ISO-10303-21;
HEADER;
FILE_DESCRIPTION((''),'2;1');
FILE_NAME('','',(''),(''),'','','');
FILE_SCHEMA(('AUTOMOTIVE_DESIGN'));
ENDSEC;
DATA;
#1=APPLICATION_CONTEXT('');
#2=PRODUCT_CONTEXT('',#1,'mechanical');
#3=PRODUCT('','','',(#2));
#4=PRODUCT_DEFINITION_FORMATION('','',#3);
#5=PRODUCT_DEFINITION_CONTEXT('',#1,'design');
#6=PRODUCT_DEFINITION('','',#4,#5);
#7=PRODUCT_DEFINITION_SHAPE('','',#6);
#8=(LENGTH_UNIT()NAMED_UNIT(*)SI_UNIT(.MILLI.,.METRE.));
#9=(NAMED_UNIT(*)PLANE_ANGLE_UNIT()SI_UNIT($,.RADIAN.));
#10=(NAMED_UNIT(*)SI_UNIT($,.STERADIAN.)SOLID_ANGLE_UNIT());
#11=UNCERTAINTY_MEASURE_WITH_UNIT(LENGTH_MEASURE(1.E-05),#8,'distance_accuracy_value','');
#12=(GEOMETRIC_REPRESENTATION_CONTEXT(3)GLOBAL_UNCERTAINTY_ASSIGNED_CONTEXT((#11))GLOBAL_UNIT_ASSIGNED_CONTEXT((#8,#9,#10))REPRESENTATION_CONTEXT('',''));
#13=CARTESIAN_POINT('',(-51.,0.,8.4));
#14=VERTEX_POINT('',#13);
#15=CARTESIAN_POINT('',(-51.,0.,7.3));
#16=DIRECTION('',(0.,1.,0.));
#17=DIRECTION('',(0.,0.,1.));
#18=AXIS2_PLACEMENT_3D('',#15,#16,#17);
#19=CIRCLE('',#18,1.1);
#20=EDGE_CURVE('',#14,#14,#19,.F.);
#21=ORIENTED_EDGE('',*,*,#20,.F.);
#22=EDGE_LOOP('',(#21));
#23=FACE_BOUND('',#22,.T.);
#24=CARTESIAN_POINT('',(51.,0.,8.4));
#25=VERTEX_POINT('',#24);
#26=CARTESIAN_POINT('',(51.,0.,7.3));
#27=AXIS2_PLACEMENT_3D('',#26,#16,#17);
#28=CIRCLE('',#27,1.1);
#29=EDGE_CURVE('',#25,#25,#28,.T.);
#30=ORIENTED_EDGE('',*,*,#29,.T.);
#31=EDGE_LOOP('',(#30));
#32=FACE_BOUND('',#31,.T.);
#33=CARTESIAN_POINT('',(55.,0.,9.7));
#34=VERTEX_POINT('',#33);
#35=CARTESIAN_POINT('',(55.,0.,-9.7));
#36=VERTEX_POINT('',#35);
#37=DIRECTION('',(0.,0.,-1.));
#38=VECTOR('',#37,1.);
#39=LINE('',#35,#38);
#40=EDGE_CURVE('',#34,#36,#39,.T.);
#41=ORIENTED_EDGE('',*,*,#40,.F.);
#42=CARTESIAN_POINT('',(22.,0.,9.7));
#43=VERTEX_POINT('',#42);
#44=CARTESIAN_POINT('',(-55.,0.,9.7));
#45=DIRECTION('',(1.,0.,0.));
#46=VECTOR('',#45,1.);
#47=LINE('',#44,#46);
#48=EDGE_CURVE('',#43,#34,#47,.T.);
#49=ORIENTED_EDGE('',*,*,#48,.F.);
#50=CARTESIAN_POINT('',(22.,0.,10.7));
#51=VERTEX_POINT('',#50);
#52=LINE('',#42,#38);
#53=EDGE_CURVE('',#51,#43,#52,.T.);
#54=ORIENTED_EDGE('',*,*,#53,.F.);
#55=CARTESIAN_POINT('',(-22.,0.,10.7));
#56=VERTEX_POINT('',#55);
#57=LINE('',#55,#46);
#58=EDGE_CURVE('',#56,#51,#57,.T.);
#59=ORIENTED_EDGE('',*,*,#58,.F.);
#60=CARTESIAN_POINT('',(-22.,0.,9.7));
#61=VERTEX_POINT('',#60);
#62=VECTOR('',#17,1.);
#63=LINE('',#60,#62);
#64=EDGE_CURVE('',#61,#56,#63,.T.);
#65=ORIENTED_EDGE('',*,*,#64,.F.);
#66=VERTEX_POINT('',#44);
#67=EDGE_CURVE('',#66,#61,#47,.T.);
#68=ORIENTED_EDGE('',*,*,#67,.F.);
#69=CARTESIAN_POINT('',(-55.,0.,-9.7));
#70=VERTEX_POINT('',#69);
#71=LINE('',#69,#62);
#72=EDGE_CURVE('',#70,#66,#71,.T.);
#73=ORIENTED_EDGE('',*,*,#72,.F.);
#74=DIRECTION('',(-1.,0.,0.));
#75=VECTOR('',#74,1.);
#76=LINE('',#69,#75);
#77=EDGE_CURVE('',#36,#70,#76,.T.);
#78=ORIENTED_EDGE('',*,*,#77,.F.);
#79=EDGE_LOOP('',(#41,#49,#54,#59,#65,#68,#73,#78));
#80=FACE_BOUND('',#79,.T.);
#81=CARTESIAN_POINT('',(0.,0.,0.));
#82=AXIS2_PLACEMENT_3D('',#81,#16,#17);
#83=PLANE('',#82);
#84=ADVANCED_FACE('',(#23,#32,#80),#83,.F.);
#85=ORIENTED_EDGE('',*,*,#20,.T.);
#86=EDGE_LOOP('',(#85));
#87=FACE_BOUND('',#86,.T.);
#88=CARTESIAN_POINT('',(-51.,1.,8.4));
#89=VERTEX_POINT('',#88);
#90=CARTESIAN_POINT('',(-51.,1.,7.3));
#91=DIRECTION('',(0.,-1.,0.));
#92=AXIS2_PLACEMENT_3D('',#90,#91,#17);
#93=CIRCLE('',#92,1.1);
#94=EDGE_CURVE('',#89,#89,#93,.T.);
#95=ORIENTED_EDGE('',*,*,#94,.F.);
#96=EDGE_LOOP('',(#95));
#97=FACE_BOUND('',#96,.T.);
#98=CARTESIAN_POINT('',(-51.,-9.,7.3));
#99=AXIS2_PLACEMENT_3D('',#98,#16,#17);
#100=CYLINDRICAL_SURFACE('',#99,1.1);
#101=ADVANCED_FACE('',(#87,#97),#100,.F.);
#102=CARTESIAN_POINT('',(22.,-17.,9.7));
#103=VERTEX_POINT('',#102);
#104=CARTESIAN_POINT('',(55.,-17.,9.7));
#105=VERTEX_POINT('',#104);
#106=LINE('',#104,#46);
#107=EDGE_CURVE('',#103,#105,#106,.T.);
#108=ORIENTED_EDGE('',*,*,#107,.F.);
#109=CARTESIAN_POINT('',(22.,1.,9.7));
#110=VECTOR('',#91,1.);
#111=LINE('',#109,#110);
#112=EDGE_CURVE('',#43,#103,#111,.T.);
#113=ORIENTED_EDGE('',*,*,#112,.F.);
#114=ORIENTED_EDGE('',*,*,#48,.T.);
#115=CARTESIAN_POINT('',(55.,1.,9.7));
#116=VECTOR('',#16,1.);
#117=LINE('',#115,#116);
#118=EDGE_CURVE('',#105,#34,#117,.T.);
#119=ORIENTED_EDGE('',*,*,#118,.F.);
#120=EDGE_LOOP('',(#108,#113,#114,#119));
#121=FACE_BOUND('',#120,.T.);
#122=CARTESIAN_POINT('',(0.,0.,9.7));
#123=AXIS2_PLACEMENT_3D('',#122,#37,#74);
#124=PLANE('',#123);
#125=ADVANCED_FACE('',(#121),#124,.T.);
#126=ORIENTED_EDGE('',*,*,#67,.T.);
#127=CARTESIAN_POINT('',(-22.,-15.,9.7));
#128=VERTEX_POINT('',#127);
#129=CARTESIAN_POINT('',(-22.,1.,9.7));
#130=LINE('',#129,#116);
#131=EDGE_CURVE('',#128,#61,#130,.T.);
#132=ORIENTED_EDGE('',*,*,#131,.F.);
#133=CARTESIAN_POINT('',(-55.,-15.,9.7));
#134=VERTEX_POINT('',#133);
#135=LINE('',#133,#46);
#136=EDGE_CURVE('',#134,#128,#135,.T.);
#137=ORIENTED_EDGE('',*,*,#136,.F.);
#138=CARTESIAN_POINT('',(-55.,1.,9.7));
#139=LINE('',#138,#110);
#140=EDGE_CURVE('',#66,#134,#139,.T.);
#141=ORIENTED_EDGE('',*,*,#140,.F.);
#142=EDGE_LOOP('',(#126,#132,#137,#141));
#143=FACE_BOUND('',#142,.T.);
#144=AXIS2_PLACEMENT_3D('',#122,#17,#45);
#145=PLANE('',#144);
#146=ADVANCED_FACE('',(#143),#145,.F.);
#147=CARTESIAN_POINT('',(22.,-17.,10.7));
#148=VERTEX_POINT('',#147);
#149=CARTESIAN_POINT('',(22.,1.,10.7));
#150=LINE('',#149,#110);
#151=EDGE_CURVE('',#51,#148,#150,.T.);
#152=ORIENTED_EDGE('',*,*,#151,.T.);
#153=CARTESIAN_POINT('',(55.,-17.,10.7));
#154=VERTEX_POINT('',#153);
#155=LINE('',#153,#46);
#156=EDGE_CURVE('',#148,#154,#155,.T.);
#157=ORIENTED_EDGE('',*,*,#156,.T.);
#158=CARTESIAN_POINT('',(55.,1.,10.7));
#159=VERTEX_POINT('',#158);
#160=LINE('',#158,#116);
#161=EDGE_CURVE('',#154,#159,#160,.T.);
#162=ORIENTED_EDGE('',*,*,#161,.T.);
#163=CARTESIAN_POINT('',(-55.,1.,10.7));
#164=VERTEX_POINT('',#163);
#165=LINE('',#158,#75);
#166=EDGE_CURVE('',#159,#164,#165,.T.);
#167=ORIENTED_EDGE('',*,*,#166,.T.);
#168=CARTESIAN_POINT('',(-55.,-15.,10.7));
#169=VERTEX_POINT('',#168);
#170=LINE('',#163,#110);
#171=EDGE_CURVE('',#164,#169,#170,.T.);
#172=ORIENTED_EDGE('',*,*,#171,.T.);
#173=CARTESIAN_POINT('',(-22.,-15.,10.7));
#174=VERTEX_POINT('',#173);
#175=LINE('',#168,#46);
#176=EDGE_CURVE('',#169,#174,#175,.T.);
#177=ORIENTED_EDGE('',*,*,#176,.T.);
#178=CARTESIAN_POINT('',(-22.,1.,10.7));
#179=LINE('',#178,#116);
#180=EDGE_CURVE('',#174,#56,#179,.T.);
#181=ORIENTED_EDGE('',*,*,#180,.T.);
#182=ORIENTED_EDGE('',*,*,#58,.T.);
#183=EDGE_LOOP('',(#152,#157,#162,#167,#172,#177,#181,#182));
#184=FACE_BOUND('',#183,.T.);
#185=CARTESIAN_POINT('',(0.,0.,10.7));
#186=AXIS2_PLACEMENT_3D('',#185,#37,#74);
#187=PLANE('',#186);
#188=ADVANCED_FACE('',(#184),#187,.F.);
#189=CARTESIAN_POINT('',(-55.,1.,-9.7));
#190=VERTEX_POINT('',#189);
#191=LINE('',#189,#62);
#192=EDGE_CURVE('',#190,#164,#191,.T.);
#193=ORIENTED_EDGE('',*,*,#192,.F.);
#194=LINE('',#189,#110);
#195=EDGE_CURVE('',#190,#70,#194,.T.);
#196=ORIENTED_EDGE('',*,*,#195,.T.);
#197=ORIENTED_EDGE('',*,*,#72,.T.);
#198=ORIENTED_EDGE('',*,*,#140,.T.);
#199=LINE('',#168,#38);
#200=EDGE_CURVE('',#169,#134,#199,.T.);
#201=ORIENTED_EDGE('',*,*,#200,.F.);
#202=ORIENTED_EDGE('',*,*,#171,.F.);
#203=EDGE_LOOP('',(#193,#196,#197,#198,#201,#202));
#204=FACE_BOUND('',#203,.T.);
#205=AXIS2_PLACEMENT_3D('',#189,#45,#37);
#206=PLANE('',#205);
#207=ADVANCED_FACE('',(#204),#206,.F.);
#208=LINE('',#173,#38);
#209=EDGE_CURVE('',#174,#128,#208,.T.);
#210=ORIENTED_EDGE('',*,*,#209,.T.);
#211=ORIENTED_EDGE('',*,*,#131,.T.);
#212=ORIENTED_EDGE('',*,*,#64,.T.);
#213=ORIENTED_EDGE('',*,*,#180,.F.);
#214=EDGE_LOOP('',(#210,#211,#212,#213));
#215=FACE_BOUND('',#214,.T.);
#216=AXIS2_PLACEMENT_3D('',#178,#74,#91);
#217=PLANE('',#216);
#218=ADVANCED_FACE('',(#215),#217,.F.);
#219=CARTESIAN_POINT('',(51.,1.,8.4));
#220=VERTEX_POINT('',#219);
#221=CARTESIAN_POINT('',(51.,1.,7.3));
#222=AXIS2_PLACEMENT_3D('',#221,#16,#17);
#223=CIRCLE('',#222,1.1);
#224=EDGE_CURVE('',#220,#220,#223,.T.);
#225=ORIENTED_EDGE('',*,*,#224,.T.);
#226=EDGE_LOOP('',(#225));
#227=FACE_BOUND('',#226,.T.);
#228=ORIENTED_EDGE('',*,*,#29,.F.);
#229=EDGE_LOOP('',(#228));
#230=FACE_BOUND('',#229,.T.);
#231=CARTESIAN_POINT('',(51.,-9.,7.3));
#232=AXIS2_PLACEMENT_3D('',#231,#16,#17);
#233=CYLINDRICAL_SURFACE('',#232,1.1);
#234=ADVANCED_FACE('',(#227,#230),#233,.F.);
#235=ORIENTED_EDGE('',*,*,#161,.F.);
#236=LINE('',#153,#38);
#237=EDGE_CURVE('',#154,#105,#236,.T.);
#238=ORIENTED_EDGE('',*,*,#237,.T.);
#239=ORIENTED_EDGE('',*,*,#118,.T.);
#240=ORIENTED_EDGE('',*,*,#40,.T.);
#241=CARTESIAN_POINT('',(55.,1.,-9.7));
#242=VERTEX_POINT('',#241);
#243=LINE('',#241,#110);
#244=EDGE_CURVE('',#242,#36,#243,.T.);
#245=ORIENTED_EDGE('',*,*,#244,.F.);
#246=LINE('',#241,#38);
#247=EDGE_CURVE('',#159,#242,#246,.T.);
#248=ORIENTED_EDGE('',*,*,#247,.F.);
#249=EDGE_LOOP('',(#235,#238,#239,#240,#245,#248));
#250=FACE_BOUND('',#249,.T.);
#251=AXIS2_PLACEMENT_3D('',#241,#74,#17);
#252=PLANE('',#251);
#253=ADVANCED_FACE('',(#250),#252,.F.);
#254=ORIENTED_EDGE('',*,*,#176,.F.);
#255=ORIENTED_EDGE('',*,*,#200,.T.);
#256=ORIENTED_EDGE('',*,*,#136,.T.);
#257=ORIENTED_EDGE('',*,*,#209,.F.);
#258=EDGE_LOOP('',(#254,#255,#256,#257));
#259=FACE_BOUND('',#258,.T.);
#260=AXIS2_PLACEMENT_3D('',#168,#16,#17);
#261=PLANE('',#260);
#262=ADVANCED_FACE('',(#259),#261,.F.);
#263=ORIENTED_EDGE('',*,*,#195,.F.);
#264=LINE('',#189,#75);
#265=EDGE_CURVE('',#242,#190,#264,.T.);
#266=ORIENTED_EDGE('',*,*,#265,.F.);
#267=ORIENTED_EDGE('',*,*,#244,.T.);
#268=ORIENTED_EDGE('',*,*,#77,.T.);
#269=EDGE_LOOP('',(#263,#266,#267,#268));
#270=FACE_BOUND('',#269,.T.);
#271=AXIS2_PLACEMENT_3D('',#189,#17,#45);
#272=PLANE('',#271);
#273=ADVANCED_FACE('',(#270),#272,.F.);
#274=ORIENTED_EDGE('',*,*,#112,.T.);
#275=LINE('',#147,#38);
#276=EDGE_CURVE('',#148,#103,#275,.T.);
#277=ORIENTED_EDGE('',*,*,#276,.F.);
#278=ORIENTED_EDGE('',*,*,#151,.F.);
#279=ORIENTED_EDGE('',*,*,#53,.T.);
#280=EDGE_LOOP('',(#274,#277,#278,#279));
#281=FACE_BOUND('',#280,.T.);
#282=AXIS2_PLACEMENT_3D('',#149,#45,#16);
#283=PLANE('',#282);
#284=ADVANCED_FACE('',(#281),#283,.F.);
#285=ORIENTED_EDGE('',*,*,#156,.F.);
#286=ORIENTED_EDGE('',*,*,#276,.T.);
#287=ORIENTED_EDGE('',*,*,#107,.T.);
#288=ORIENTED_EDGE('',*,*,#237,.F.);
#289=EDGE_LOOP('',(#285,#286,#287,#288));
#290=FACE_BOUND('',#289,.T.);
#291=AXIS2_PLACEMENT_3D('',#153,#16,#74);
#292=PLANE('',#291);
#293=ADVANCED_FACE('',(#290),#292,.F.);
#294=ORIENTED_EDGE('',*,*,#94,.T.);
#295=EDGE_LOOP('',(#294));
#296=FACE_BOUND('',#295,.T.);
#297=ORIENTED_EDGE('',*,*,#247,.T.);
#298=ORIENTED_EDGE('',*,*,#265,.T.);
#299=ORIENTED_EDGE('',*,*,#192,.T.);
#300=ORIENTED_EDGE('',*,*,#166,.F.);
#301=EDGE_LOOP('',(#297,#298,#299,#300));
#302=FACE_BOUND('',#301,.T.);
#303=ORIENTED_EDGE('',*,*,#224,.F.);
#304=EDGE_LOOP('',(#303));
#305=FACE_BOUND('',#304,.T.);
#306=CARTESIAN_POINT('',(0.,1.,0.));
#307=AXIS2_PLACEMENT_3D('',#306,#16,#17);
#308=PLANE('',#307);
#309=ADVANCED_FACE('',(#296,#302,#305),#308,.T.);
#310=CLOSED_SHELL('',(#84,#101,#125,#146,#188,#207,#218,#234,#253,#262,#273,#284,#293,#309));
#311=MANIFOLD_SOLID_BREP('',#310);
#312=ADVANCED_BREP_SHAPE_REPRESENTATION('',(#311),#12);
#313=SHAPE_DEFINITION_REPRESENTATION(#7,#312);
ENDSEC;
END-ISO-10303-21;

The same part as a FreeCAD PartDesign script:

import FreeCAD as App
import Part
import Sketcher

doc = App.newDocument("Part")
body = doc.addObject("PartDesign::Body", "Body")

sketch1 = body.newObject("Sketcher::SketchObject", "Sketch")
sketch1.AttachmentSupport = (doc.getObject("XZ_Plane"), [""])
sketch1.MapMode = "FlatFace"
sketch1.addGeometry(Part.LineSegment(App.Vector(-55, -10, 0), App.Vector(-55, 10, 0)), False)
sketch1.addGeometry(Part.LineSegment(App.Vector(-55, 10, 0), App.Vector(55, 10, 0)), False)
sketch1.addGeometry(Part.LineSegment(App.Vector(55, 10, 0), App.Vector(55, -10, 0)), False)
sketch1.addGeometry(Part.LineSegment(App.Vector(55, -10, 0), App.Vector(-55, -10, 0)), False)
sketch1.addConstraint(Sketcher.Constraint("Coincident", 0, 2, 1, 1))
sketch1.addConstraint(Sketcher.Constraint("Coincident", 1, 2, 2, 1))
sketch1.addConstraint(Sketcher.Constraint("Coincident", 2, 2, 3, 1))
sketch1.addConstraint(Sketcher.Constraint("Coincident", 3, 2, 0, 1))
sketch1.addConstraint(Sketcher.Constraint("Vertical", 0))
sketch1.addConstraint(Sketcher.Constraint("Horizontal", 1))
sketch1.addConstraint(Sketcher.Constraint("Vertical", 2))
sketch1.addConstraint(Sketcher.Constraint("Horizontal", 3))
sketch1.addConstraint(Sketcher.Constraint("Symmetric", 0, 2, 2, 2, -1, 1))
sketch1.addConstraint(Sketcher.Constraint("DistanceX", 1, 1, 1, 2, 110.0))
sketch1.addConstraint(Sketcher.Constraint("DistanceY", 0, 1, 0, 2, 19.4))
pad1 = body.newObject("PartDesign::Pad", "Pad")
pad1.Profile = sketch1
pad1.Length = 1
pad1.Reversed = True

sketch2 = body.newObject("Sketcher::SketchObject", "Sketch001")
sketch2.AttachmentSupport = (doc.getObject("XY_Plane"), [""])
sketch2.MapMode = "FlatFace"
sketch2.AttachmentOffset = App.Placement(App.Vector(0, 0, 9.7), App.Rotation())
sketch2.addGeometry(Part.LineSegment(App.Vector(22, 1, 0), App.Vector(22, -17, 0)), False)
sketch2.addGeometry(Part.LineSegment(App.Vector(22, -17, 0), App.Vector(55, -17, 0)), False)
sketch2.addGeometry(Part.LineSegment(App.Vector(55, -17, 0), App.Vector(55, 1, 0)), False)
sketch2.addGeometry(Part.LineSegment(App.Vector(55, 1, 0), App.Vector(22, 1, 0)), False)
sketch2.addConstraint(Sketcher.Constraint("Coincident", 0, 2, 1, 1))
sketch2.addConstraint(Sketcher.Constraint("Coincident", 1, 2, 2, 1))
sketch2.addConstraint(Sketcher.Constraint("Coincident", 2, 2, 3, 1))
sketch2.addConstraint(Sketcher.Constraint("Coincident", 3, 2, 0, 1))
sketch2.addConstraint(Sketcher.Constraint("Vertical", 0))
sketch2.addConstraint(Sketcher.Constraint("Horizontal", 1))
sketch2.addConstraint(Sketcher.Constraint("Vertical", 2))
sketch2.addConstraint(Sketcher.Constraint("Horizontal", 3))
sketch2.addConstraint(Sketcher.Constraint("DistanceX", 1, 1, 1, 2, 33.0))
sketch2.addConstraint(Sketcher.Constraint("DistanceY", 0, 2, 0, 1, 18.0))
sketch2.addConstraint(Sketcher.Constraint("DistanceX", -1, 1, 0, 2, 22.0))
sketch2.addConstraint(Sketcher.Constraint("DistanceY", 0, 2, -1, 1, 17.0))
pad2 = body.newObject("PartDesign::Pad", "Pad001")
pad2.Profile = sketch2
pad2.Length = 1

sketch3 = body.newObject("Sketcher::SketchObject", "Sketch002")
sketch3.AttachmentSupport = (doc.getObject("XY_Plane"), [""])
sketch3.MapMode = "FlatFace"
sketch3.AttachmentOffset = App.Placement(App.Vector(0, 0, 9.7), App.Rotation())
sketch3.addGeometry(Part.LineSegment(App.Vector(-55, 1, 0), App.Vector(-55, -15, 0)), False)
sketch3.addGeometry(Part.LineSegment(App.Vector(-55, -15, 0), App.Vector(-22, -15, 0)), False)
sketch3.addGeometry(Part.LineSegment(App.Vector(-22, -15, 0), App.Vector(-22, 1, 0)), False)
sketch3.addGeometry(Part.LineSegment(App.Vector(-22, 1, 0), App.Vector(-55, 1, 0)), False)
sketch3.addConstraint(Sketcher.Constraint("Coincident", 0, 2, 1, 1))
sketch3.addConstraint(Sketcher.Constraint("Coincident", 1, 2, 2, 1))
sketch3.addConstraint(Sketcher.Constraint("Coincident", 2, 2, 3, 1))
sketch3.addConstraint(Sketcher.Constraint("Coincident", 3, 2, 0, 1))
sketch3.addConstraint(Sketcher.Constraint("Vertical", 0))
sketch3.addConstraint(Sketcher.Constraint("Horizontal", 1))
sketch3.addConstraint(Sketcher.Constraint("Vertical", 2))
sketch3.addConstraint(Sketcher.Constraint("Horizontal", 3))
sketch3.addConstraint(Sketcher.Constraint("DistanceX", 1, 1, 1, 2, 33.0))
sketch3.addConstraint(Sketcher.Constraint("DistanceY", 0, 2, 0, 1, 16.0))
sketch3.addConstraint(Sketcher.Constraint("DistanceX", 0, 2, -1, 1, 55.0))
sketch3.addConstraint(Sketcher.Constraint("DistanceY", 0, 2, -1, 1, 15.0))
pad3 = body.newObject("PartDesign::Pad", "Pad002")
pad3.Profile = sketch3
pad3.Length = 1

sketch4 = body.newObject("Sketcher::SketchObject", "Sketch003")
sketch4.AttachmentSupport = (doc.getObject("XZ_Plane"), [""])
sketch4.MapMode = "FlatFace"
sketch4.AttachmentOffset = App.Placement(App.Vector(0, 0, -1), App.Rotation())
sketch4.addGeometry(Part.LineSegment(App.Vector(-22, 9.7, 0), App.Vector(-22, 10.7, 0)), False)
sketch4.addGeometry(Part.LineSegment(App.Vector(-22, 10.7, 0), App.Vector(22, 10.7, 0)), False)
sketch4.addGeometry(Part.LineSegment(App.Vector(22, 10.7, 0), App.Vector(22, 9.7, 0)), False)
sketch4.addGeometry(Part.LineSegment(App.Vector(22, 9.7, 0), App.Vector(-22, 9.7, 0)), False)
sketch4.addConstraint(Sketcher.Constraint("Coincident", 0, 2, 1, 1))
sketch4.addConstraint(Sketcher.Constraint("Coincident", 1, 2, 2, 1))
sketch4.addConstraint(Sketcher.Constraint("Coincident", 2, 2, 3, 1))
sketch4.addConstraint(Sketcher.Constraint("Coincident", 3, 2, 0, 1))
sketch4.addConstraint(Sketcher.Constraint("Vertical", 0))
sketch4.addConstraint(Sketcher.Constraint("Horizontal", 1))
sketch4.addConstraint(Sketcher.Constraint("Vertical", 2))
sketch4.addConstraint(Sketcher.Constraint("Horizontal", 3))
sketch4.addConstraint(Sketcher.Constraint("DistanceX", 1, 1, 1, 2, 44.0))
sketch4.addConstraint(Sketcher.Constraint("DistanceY", 0, 1, 0, 2, 1.0))
sketch4.addConstraint(Sketcher.Constraint("DistanceX", 0, 2, -1, 1, 22.0))
sketch4.addConstraint(Sketcher.Constraint("DistanceY", -1, 1, 0, 2, 10.7))
pad4 = body.newObject("PartDesign::Pad", "Pad003")
pad4.Profile = sketch4
pad4.Length = 1

sketch5 = body.newObject("Sketcher::SketchObject", "Sketch004")
sketch5.AttachmentSupport = (doc.getObject("XZ_Plane"), [""])
sketch5.MapMode = "FlatFace"
sketch5.AttachmentOffset = App.Placement(App.Vector(0, 0, -1), App.Rotation())
sketch5.addGeometry(Part.Circle(App.Vector(51, 7.3, 0), App.Vector(0, 0, 1), 1.1), False)
sketch5.addConstraint(Sketcher.Constraint("Diameter", 0, 2.2))
sketch5.addConstraint(Sketcher.Constraint("DistanceX", -1, 1, 0, 3, 51.0))
sketch5.addConstraint(Sketcher.Constraint("DistanceY", -1, 1, 0, 3, 7.3))
pocket1 = body.newObject("PartDesign::Pocket", "Pocket")
pocket1.Profile = sketch5
pocket1.Length = 10
pocket1.Reversed = True
doc.recompute()

mirrored = body.newObject("PartDesign::Mirrored", "Mirrored")
mirrored.Originals = [pocket1]
mirrored.MirrorPlane = (doc.getObject("YZ_Plane"), [""])
body.Tip = mirrored

doc.recompute()
